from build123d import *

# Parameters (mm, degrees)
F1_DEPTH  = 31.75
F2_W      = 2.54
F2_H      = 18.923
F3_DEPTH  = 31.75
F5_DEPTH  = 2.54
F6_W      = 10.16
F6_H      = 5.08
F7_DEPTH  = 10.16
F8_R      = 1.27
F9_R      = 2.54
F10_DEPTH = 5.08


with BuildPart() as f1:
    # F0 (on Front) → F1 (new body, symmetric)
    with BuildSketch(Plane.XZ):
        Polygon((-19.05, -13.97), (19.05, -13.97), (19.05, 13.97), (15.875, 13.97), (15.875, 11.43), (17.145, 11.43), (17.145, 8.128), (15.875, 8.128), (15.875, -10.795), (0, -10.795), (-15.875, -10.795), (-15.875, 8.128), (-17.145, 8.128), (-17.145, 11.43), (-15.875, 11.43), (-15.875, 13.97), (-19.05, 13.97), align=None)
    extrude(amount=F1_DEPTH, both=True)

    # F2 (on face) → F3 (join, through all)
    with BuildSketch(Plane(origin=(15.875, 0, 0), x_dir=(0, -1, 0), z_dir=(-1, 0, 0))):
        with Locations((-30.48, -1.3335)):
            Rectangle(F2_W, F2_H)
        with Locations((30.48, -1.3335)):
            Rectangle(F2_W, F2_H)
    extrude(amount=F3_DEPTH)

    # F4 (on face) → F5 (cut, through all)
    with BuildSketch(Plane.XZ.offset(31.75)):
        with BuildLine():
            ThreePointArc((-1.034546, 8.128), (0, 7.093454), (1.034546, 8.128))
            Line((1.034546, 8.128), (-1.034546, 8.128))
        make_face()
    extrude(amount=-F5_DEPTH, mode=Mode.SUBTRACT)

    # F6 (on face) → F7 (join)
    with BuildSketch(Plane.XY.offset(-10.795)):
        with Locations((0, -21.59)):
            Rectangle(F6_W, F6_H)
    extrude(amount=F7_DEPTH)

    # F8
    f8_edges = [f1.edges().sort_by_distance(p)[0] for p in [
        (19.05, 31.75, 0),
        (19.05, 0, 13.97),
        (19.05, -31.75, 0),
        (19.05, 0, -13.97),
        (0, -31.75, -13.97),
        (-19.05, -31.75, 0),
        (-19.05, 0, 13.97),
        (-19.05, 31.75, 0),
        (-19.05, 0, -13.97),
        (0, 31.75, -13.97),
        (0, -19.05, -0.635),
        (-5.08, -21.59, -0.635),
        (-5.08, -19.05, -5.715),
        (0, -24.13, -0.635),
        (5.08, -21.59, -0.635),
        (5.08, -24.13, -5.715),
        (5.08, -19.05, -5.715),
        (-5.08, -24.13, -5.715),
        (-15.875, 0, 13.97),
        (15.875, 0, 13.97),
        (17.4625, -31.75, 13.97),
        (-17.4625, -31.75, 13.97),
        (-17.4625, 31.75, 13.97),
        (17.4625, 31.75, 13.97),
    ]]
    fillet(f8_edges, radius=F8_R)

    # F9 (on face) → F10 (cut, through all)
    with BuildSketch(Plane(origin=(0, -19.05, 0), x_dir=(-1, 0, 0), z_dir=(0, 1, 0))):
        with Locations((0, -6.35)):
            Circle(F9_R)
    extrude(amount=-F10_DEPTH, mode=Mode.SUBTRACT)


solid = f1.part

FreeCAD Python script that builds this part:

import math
import FreeCAD as App
import Part
import Sketcher

V = App.Vector
Q = App.Units.Quantity


def edges_at(feature, points):
    """Names of the edges that pass closest to the given points."""
    edges = feature.Shape.Edges
    near = lambda p: min(range(len(edges)), key=lambda i: edges[i].distToShape(Part.Vertex(*p))[0])
    return sorted({f"Edge{near(p) + 1}" for p in points})

doc = App.newDocument("Part")
body = doc.addObject("PartDesign::Body", "Body")

# Sketch on XZ plane
sketch1 = body.newObject("Sketcher::SketchObject", "Sketch")
sketch1.AttachmentSupport = (doc.getObject("XZ_Plane"), [""])
sketch1.MapMode = "FlatFace"
sketch1.addGeometry([
    Part.LineSegment(V(-19.05, -13.97, 0), V(19.05, -13.97, 0)),  # 0
    Part.LineSegment(V(19.05, -13.97, 0), V(19.05, 13.97, 0)),  # 1
    Part.LineSegment(V(19.05, 13.97, 0), V(15.875, 13.97, 0)),  # 2
    Part.LineSegment(V(15.875, 13.97, 0), V(15.875, 11.43, 0)),  # 3
    Part.LineSegment(V(15.875, 11.43, 0), V(17.145, 11.43, 0)),  # 4
    Part.LineSegment(V(17.145, 11.43, 0), V(17.145, 8.128, 0)),  # 5
    Part.LineSegment(V(17.145, 8.128, 0), V(15.875, 8.128, 0)),  # 6
    Part.LineSegment(V(15.875, 8.128, 0), V(15.875, -10.795, 0)),  # 7
    Part.LineSegment(V(15.875, -10.795, 0), V(-15.875, -10.795, 0)),  # 8
    Part.LineSegment(V(-15.875, -10.795, 0), V(-15.875, 8.128, 0)),  # 9
    Part.LineSegment(V(-15.875, 8.128, 0), V(-17.145, 8.128, 0)),  # 10
    Part.LineSegment(V(-17.145, 8.128, 0), V(-17.145, 11.43, 0)),  # 11
    Part.LineSegment(V(-17.145, 11.43, 0), V(-15.875, 11.43, 0)),  # 12
    Part.LineSegment(V(-15.875, 11.43, 0), V(-15.875, 13.97, 0)),  # 13
    Part.LineSegment(V(-15.875, 13.97, 0), V(-19.05, 13.97, 0)),  # 14
    Part.LineSegment(V(-19.05, 13.97, 0), V(-19.05, -13.97, 0)),  # 15
], False)
sketch1.addConstraint([
    Sketcher.Constraint("Coincident", 0, 2, 1, 1),
    Sketcher.Constraint("Coincident", 1, 2, 2, 1),
    Sketcher.Constraint("Coincident", 2, 2, 3, 1),
    Sketcher.Constraint("Coincident", 3, 2, 4, 1),
    Sketcher.Constraint("Coincident", 4, 2, 5, 1),
    Sketcher.Constraint("Coincident", 5, 2, 6, 1),
    Sketcher.Constraint("Coincident", 6, 2, 7, 1),
    Sketcher.Constraint("Coincident", 7, 2, 8, 1),
    Sketcher.Constraint("Coincident", 8, 2, 9, 1),
    Sketcher.Constraint("Coincident", 9, 2, 10, 1),
    Sketcher.Constraint("Coincident", 10, 2, 11, 1),
    Sketcher.Constraint("Coincident", 11, 2, 12, 1),
    Sketcher.Constraint("Coincident", 12, 2, 13, 1),
    Sketcher.Constraint("Coincident", 13, 2, 14, 1),
    Sketcher.Constraint("Coincident", 14, 2, 15, 1),
    Sketcher.Constraint("Coincident", 15, 2, 0, 1),
    Sketcher.Constraint("Horizontal", 0),
    Sketcher.Constraint("Vertical", 1),
    Sketcher.Constraint("Horizontal", 2),
    Sketcher.Constraint("Vertical", 3),
    Sketcher.Constraint("Horizontal", 4),
    Sketcher.Constraint("Vertical", 5),
    Sketcher.Constraint("Horizontal", 6),
    Sketcher.Constraint("Vertical", 7),
    Sketcher.Constraint("Horizontal", 8),
    Sketcher.Constraint("Vertical", 9),
    Sketcher.Constraint("Horizontal", 10),
    Sketcher.Constraint("Vertical", 11),
    Sketcher.Constraint("Horizontal", 12),
    Sketcher.Constraint("Vertical", 13),
    Sketcher.Constraint("Horizontal", 14),
    Sketcher.Constraint("Vertical", 15),
    Sketcher.Constraint("Symmetric", 0, 2, 14, 2, -1, 1),
    Sketcher.Constraint("Symmetric", 6, 2, 9, 2, -2),
    Sketcher.Constraint("Symmetric", 4, 2, 11, 2, -2),
    Sketcher.Constraint("Symmetric", 2, 2, 13, 2, -2),
    Sketcher.Constraint("Vertical", 3, 2, 6, 2),
    Sketcher.Constraint("DistanceX", 0, 1, 0, 2, Q("1.5 in")),
    Sketcher.Constraint("DistanceY", 1, 1, 1, 2, Q("1.1 in")),
    Sketcher.Constraint("DistanceY", 3, 2, 3, 1, Q("0.1 in")),
    Sketcher.Constraint("DistanceX", 4, 1, 4, 2, Q("0.05 in")),
    Sketcher.Constraint("DistanceX", 8, 2, 8, 1, Q("1.25 in")),
    Sketcher.Constraint("DistanceY", 5, 2, 5, 1, Q("0.13 in")),
    Sketcher.Constraint("DistanceY", 7, 2, 7, 1, Q("0.745 in")),
])
pad1 = body.newObject("PartDesign::Pad", "Pad")
pad1.Profile = sketch1
pad1.Length = Q("2.5 in")
pad1.Midplane = True

# Sketch on YZ plane
sketch2 = body.newObject("Sketcher::SketchObject", "Sketch001")
sketch2.AttachmentSupport = (doc.getObject("YZ_Plane"), [""])
sketch2.MapMode = "FlatFace"
sketch2.AttachmentOffset = App.Placement(V(0, 0, 0.625 * 25.4), App.Rotation())
sketch2.addGeometry([
    Part.LineSegment(V(31.75, 8.128, 0), V(31.75, -10.795, 0)),  # 0
    Part.LineSegment(V(31.75, -10.795, 0), V(29.21, -10.795, 0)),  # 1
    Part.LineSegment(V(29.21, -10.795, 0), V(29.21, 8.128, 0)),  # 2
    Part.LineSegment(V(29.21, 8.128, 0), V(31.75, 8.128, 0)),  # 3
    Part.LineSegment(V(-29.21, 8.128, 0), V(-29.21, -10.795, 0)),  # 4
    Part.LineSegment(V(-29.21, -10.795, 0), V(-31.75, -10.795, 0)),  # 5
    Part.LineSegment(V(-31.75, -10.795, 0), V(-31.75, 8.128, 0)),  # 6
    Part.LineSegment(V(-31.75, 8.128, 0), V(-29.21, 8.128, 0)),  # 7
], False)
sketch2.addConstraint([
    Sketcher.Constraint("Coincident", 0, 2, 1, 1),
    Sketcher.Constraint("Coincident", 1, 2, 2, 1),
    Sketcher.Constraint("Coincident", 2, 2, 3, 1),
    Sketcher.Constraint("Coincident", 3, 2, 0, 1),
    Sketcher.Constraint("Coincident", 4, 2, 5, 1),
    Sketcher.Constraint("Coincident", 5, 2, 6, 1),
    Sketcher.Constraint("Coincident", 6, 2, 7, 1),
    Sketcher.Constraint("Coincident", 7, 2, 4, 1),
    Sketcher.Constraint("Vertical", 0),
    Sketcher.Constraint("Horizontal", 1),
    Sketcher.Constraint("Vertical", 2),
    Sketcher.Constraint("Horizontal", 3),
    Sketcher.Constraint("Vertical", 4),
    Sketcher.Constraint("Horizontal", 5),
    Sketcher.Constraint("Vertical", 6),
    Sketcher.Constraint("Horizontal", 7),
    Sketcher.Constraint("Symmetric", 1, 2, 4, 2, -2),
    Sketcher.Constraint("Symmetric", 3, 2, 6, 2, -2),
    Sketcher.Constraint("DistanceX", 1, 2, 1, 1, Q("0.1 in")),
    Sketcher.Constraint("DistanceX", 4, 2, 1, 2, Q("2.3 in")),
    Sketcher.Constraint("DistanceY", 0, 2, 0, 1, Q("0.745 in")),
    Sketcher.Constraint("DistanceY", -1, 1, 2, 2, Q("0.32 in")),
])
pad2 = body.newObject("PartDesign::Pad", "Pad001")
pad2.Profile = sketch2
pad2.Type = "UpToLast"
pad2.Reversed = True

# Sketch on XZ plane
sketch3 = body.newObject("Sketcher::SketchObject", "Sketch002")
sketch3.AttachmentSupport = (doc.getObject("XZ_Plane"), [""])
sketch3.MapMode = "FlatFace"
sketch3.AttachmentOffset = App.Placement(V(0, 0, 1.25 * 25.4), App.Rotation())
sketch3.addGeometry([
    Part.ArcOfCircle(Part.Circle(V(0, 8.128, 0), V(0, 0, 1), 1.034546), math.radians(180), math.radians(360)),
    Part.LineSegment(V(1.034546, 8.128, 0), V(-1.034546, 8.128, 0)),
], False)
sketch3.addConstraint([
    Sketcher.Constraint("Coincident", 0, 1, 1, 2),
    Sketcher.Constraint("Coincident", 1, 1, 0, 2),
    Sketcher.Constraint("Horizontal", 1),
    Sketcher.Constraint("PointOnObject", 0, 3, -2),
    Sketcher.Constraint("DistanceY", -1, 1, 0, 3, Q("0.32 in")),
    Sketcher.Constraint("DistanceY", -1, 1, 0, 1, Q("0.32 in")),
    Sketcher.Constraint("Radius", 0, 1.034546),
])
pocket1 = body.newObject("PartDesign::Pocket", "Pocket")
pocket1.Profile = sketch3
pocket1.Length = Q("0.1 in")

# Sketch on XY plane
sketch4 = body.newObject("Sketcher::SketchObject", "Sketch003")
sketch4.AttachmentSupport = (doc.getObject("XY_Plane"), [""])
sketch4.MapMode = "FlatFace"
sketch4.AttachmentOffset = App.Placement(V(0, 0, -0.425 * 25.4), App.Rotation())
sketch4.addGeometry([
    Part.LineSegment(V(-5.08, -19.05, 0), V(-5.08, -24.13, 0)),
    Part.LineSegment(V(-5.08, -24.13, 0), V(5.08, -24.13, 0)),
    Part.LineSegment(V(5.08, -24.13, 0), V(5.08, -19.05, 0)),
    Part.LineSegment(V(5.08, -19.05, 0), V(-5.08, -19.05, 0)),
], False)
sketch4.addConstraint([
    Sketcher.Constraint("Coincident", 0, 2, 1, 1),
    Sketcher.Constraint("Coincident", 1, 2, 2, 1),
    Sketcher.Constraint("Coincident", 2, 2, 3, 1),
    Sketcher.Constraint("Coincident", 3, 2, 0, 1),
    Sketcher.Constraint("Vertical", 0),
    Sketcher.Constraint("Horizontal", 1),
    Sketcher.Constraint("Vertical", 2),
    Sketcher.Constraint("Horizontal", 3),
    Sketcher.Constraint("DistanceX", 1, 1, 1, 2, Q("0.4 in")),
    Sketcher.Constraint("DistanceY", 0, 2, 0, 1, Q("0.2 in")),
    Sketcher.Constraint("DistanceX", 0, 2, -1, 1, Q("0.2 in")),
    Sketcher.Constraint("DistanceY", 0, 2, -1, 1, Q("0.95 in")),
])
pad3 = body.newObject("PartDesign::Pad", "Pad002")
pad3.Profile = sketch4
pad3.Length = Q("0.4 in")
doc.recompute()

fillet = body.newObject("PartDesign::Fillet", "Fillet")
fillet.Base = (pad3, edges_at(pad3, [
    (19.05, 31.75, 0),
    (19.05, 0, 13.97),
    (19.05, -31.75, 0),
    (19.05, 0, -13.97),
    (0, -31.75, -13.97),
    (-19.05, -31.75, 0),
    (-19.05, 0, 13.97),
    (-19.05, 31.75, 0),
    (-19.05, 0, -13.97),
    (0, 31.75, -13.97),
    (0, -19.05, -0.635),
    (-5.08, -21.59, -0.635),
    (-5.08, -19.05, -5.715),
    (0, -24.13, -0.635),
    (5.08, -21.59, -0.635),
    (5.08, -24.13, -5.715),
    (5.08, -19.05, -5.715),
    (-5.08, -24.13, -5.715),
    (-15.875, 0, 13.97),
    (15.875, 0, 13.97),
    (17.462, -31.75, 13.97),
    (-17.462, -31.75, 13.97),
    (-17.462, 31.75, 13.97),
    (17.462, 31.75, 13.97),
]))
fillet.Radius = Q("0.05 in")

# Sketch on XZ plane
sketch5 = body.newObject("Sketcher::SketchObject", "Sketch004")
sketch5.AttachmentSupport = (doc.getObject("XZ_Plane"), [""])
sketch5.MapMode = "FlatFace"
sketch5.AttachmentOffset = App.Placement(V(0, 0, 0.75 * 25.4), App.Rotation())
sketch5.addGeometry(Part.Circle(V(0, -6.35, 0), V(0, 0, 1), 2.54), False)
sketch5.addConstraint([
    Sketcher.Constraint("PointOnObject", 0, 3, -2),
    Sketcher.Constraint("Diameter", 0, Q("0.2 in")),
    Sketcher.Constraint("DistanceY", 0, 3, -1, 1, Q("0.25 in")),
])
pocket2 = body.newObject("PartDesign::Pocket", "Pocket001")
pocket2.Profile = sketch5
pocket2.Length = Q("0.2 in")
pocket2.Reversed = True

doc.recompute()
